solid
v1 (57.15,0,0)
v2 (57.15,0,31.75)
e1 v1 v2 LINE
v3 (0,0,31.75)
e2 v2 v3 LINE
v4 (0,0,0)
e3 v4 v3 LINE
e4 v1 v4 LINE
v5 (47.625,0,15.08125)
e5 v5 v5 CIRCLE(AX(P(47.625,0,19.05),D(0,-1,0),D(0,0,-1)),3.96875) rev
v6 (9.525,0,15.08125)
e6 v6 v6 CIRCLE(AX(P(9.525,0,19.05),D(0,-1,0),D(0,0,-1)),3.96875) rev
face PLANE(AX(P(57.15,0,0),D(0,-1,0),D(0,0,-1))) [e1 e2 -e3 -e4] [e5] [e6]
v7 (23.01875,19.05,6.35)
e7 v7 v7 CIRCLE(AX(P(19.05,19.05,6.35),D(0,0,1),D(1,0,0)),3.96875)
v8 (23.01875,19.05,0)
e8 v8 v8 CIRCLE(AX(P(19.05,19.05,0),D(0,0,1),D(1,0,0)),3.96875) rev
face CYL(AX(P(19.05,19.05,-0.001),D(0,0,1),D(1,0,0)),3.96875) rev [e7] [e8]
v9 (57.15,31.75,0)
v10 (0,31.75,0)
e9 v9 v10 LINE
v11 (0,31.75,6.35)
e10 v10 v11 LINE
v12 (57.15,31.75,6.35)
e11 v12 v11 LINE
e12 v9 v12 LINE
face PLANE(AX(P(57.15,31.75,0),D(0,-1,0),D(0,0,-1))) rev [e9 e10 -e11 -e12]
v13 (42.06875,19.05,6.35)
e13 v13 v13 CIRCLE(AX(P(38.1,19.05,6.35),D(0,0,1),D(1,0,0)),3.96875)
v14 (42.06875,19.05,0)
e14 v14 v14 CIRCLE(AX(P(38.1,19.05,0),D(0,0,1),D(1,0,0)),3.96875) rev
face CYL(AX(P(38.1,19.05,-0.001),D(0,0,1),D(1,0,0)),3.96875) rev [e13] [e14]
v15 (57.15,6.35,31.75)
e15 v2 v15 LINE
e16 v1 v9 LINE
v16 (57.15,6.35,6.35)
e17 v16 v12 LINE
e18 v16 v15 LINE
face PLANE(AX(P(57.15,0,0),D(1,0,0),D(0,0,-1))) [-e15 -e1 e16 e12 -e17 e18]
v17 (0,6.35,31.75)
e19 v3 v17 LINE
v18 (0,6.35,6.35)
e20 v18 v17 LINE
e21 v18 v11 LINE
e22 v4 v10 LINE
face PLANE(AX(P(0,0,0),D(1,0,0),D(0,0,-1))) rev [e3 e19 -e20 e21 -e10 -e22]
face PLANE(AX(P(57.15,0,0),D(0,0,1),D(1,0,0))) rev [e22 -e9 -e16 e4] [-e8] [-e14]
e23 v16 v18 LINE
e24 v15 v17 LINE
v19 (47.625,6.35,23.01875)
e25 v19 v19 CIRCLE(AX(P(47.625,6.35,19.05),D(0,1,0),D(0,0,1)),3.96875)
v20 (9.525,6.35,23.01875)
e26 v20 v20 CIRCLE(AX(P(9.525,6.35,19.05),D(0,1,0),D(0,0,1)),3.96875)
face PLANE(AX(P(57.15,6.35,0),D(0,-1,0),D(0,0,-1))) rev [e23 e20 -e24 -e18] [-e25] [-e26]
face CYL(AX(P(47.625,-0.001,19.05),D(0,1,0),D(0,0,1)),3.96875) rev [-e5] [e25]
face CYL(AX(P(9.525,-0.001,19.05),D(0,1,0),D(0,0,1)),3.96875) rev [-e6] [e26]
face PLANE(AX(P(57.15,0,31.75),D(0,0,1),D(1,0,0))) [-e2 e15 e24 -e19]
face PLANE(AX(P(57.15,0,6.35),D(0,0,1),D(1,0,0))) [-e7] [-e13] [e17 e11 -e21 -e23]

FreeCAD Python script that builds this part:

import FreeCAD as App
import Part
import Sketcher
from FreeCAD import Vector
Q = App.Units.Quantity

doc = App.newDocument("Part")
params = doc.addObject("Spreadsheet::Sheet", "Params")
for row, (alias, value) in enumerate([
    ("sketch1_width", "1 in"),
    ("sketch1_width2", "0.25 in"),
    ("pad1_length", "2.25 in"),
    ("sketch2_diameter", "0.3125 in"),
    ("sketch3_diameter", "0.3125 in"),
    ("sketch4_diameter", "0.3125 in"),
    ("sketch5_diameter", "0.3125 in"),
], start=1):
    params.set(f"A{row}", alias)
    params.set(f"B{row}", "=" + value)
    params.setAlias(f"B{row}", alias)

body = doc.addObject("PartDesign::Body", "Body")

sketch1 = body.newObject("Sketcher::SketchObject", "Sketch")
sketch1.AttachmentSupport = (doc.getObject("YZ_Plane"), [""])
sketch1.MapMode = "FlatFace"
sketch1.addGeometry([
    Part.LineSegment(Vector(6, 32, 0), Vector(0, 32, 0)),
    Part.LineSegment(Vector(0, 32, 0), Vector(0, 0, 0)),
    Part.LineSegment(Vector(0, 0, 0), Vector(32, 0, 0)),
    Part.LineSegment(Vector(32, 0, 0), Vector(32, 6, 0)),
    Part.LineSegment(Vector(32, 6, 0), Vector(6, 6, 0)),
    Part.LineSegment(Vector(6, 6, 0), Vector(6, 32, 0)),
], False)
sketch1.addConstraint([
    Sketcher.Constraint("Coincident", 0, 2, 1, 1),
    Sketcher.Constraint("Coincident", 1, 2, 2, 1),
    Sketcher.Constraint("Coincident", 2, 2, 3, 1),
    Sketcher.Constraint("Coincident", 3, 2, 4, 1),
    Sketcher.Constraint("Coincident", 4, 2, 5, 1),
    Sketcher.Constraint("Coincident", 5, 2, 0, 1),
    Sketcher.Constraint("Horizontal", 0),
    Sketcher.Constraint("Vertical", 1),
    Sketcher.Constraint("Horizontal", 2),
    Sketcher.Constraint("Vertical", 3),
    Sketcher.Constraint("Horizontal", 4),
    Sketcher.Constraint("Vertical", 5),
    Sketcher.Constraint("Coincident", 1, 2, -1, 1),
    Sketcher.Constraint("Equal", 2, 1),
    Sketcher.Constraint("Equal", 0, 3),
    Sketcher.Constraint("DistanceX", 4, 2, 4, 1, Q("1 in")),
    Sketcher.Constraint("DistanceX", 0, 2, 0, 1, Q("0.25 in")),
])
sketch1.setExpression("Constraints[15]", "Params.sketch1_width")
sketch1.setExpression("Constraints[16]", "Params.sketch1_width2")
pad1 = body.newObject("PartDesign::Pad", "Pad")
pad1.Profile = sketch1
pad1.setExpression("Length", "Params.pad1_length")

sketch2 = body.newObject("Sketcher::SketchObject", "Sketch001")
sketch2.AttachmentSupport = (doc.getObject("XY_Plane"), [""])
sketch2.MapMode = "FlatFace"
sketch2.AttachmentOffset = App.Placement(Vector(0, 0, 0.25 * 25.4), App.Rotation())
sketch2.addGeometry(Part.Circle(Vector(19.1, 19.1, 0), Vector(0, 0, 1), 4), False)
sketch2.addConstraint([
    Sketcher.Constraint("Diameter", 0, Q("0.3125 in")),
    Sketcher.Constraint("DistanceX", -1, 1, 0, 3, Q("0.75 in")),
    Sketcher.Constraint("DistanceY", -1, 1, 0, 3, Q("0.75 in")),
])
sketch2.setExpression("Constraints[0]", "Params.sketch2_diameter")
pocket1 = body.newObject("PartDesign::Pocket", "Pocket")
pocket1.Profile = sketch2
pocket1.Type = "UpToFirst"

sketch3 = body.newObject("Sketcher::SketchObject", "Sketch002")
sketch3.AttachmentSupport = (doc.getObject("XY_Plane"), [""])
sketch3.MapMode = "FlatFace"
sketch3.AttachmentOffset = App.Placement(Vector(0, 0, 0.25 * 25.4), App.Rotation())
sketch3.addGeometry(Part.Circle(Vector(38.1, 19.1, 0), Vector(0, 0, 1), 4), False)
sketch3.addConstraint([
    Sketcher.Constraint("Diameter", 0, Q("0.3125 in")),
    Sketcher.Constraint("DistanceX", -1, 1, 0, 3, Q("1.5 in")),
    Sketcher.Constraint("DistanceY", -1, 1, 0, 3, Q("0.75 in")),
])
sketch3.setExpression("Constraints[0]", "Params.sketch3_diameter")
pocket2 = body.newObject("PartDesign::Pocket", "Pocket001")
pocket2.Profile = sketch3
pocket2.Type = "UpToFirst"

sketch4 = body.newObject("Sketcher::SketchObject", "Sketch003")
sketch4.AttachmentSupport = (doc.getObject("XZ_Plane"), [""])
sketch4.MapMode = "FlatFace"
sketch4.AttachmentOffset = App.Placement(Vector(0, 0, -0.25 * 25.4), App.Rotation())
sketch4.addGeometry(Part.Circle(Vector(9.5, 19.1, 0), Vector(0, 0, 1), 4), False)
sketch4.addConstraint([
    Sketcher.Constraint("Diameter", 0, Q("0.3125 in")),
    Sketcher.Constraint("DistanceY", -1, 1, 0, 3, Q("0.75 in")),
    Sketcher.Constraint("DistanceX", -1, 1, 0, 3, Q("0.375 in")),
])
sketch4.setExpression("Constraints[0]", "Params.sketch4_diameter")
pocket3 = body.newObject("PartDesign::Pocket", "Pocket002")
pocket3.Profile = sketch4
pocket3.Type = "UpToFirst"
pocket3.Reversed = True

sketch5 = body.newObject("Sketcher::SketchObject", "Sketch004")
sketch5.AttachmentSupport = (doc.getObject("XZ_Plane"), [""])
sketch5.MapMode = "FlatFace"
sketch5.AttachmentOffset = App.Placement(Vector(0, 0, -0.25 * 25.4), App.Rotation())
sketch5.addGeometry(Part.Circle(Vector(47.6, 19.1, 0), Vector(0, 0, 1), 4), False)
sketch5.addConstraint([
    Sketcher.Constraint("Diameter", 0, Q("0.3125 in")),
    Sketcher.Constraint("DistanceY", -1, 1, 0, 3, Q("0.75 in")),
    Sketcher.Constraint("DistanceX", -1, 1, 0, 3, Q("1.875 in")),
])
sketch5.setExpression("Constraints[0]", "Params.sketch5_diameter")
pocket4 = body.newObject("PartDesign::Pocket", "Pocket003")
pocket4.Profile = sketch5
pocket4.Type = "UpToFirst"
pocket4.Reversed = True

doc.recompute()
